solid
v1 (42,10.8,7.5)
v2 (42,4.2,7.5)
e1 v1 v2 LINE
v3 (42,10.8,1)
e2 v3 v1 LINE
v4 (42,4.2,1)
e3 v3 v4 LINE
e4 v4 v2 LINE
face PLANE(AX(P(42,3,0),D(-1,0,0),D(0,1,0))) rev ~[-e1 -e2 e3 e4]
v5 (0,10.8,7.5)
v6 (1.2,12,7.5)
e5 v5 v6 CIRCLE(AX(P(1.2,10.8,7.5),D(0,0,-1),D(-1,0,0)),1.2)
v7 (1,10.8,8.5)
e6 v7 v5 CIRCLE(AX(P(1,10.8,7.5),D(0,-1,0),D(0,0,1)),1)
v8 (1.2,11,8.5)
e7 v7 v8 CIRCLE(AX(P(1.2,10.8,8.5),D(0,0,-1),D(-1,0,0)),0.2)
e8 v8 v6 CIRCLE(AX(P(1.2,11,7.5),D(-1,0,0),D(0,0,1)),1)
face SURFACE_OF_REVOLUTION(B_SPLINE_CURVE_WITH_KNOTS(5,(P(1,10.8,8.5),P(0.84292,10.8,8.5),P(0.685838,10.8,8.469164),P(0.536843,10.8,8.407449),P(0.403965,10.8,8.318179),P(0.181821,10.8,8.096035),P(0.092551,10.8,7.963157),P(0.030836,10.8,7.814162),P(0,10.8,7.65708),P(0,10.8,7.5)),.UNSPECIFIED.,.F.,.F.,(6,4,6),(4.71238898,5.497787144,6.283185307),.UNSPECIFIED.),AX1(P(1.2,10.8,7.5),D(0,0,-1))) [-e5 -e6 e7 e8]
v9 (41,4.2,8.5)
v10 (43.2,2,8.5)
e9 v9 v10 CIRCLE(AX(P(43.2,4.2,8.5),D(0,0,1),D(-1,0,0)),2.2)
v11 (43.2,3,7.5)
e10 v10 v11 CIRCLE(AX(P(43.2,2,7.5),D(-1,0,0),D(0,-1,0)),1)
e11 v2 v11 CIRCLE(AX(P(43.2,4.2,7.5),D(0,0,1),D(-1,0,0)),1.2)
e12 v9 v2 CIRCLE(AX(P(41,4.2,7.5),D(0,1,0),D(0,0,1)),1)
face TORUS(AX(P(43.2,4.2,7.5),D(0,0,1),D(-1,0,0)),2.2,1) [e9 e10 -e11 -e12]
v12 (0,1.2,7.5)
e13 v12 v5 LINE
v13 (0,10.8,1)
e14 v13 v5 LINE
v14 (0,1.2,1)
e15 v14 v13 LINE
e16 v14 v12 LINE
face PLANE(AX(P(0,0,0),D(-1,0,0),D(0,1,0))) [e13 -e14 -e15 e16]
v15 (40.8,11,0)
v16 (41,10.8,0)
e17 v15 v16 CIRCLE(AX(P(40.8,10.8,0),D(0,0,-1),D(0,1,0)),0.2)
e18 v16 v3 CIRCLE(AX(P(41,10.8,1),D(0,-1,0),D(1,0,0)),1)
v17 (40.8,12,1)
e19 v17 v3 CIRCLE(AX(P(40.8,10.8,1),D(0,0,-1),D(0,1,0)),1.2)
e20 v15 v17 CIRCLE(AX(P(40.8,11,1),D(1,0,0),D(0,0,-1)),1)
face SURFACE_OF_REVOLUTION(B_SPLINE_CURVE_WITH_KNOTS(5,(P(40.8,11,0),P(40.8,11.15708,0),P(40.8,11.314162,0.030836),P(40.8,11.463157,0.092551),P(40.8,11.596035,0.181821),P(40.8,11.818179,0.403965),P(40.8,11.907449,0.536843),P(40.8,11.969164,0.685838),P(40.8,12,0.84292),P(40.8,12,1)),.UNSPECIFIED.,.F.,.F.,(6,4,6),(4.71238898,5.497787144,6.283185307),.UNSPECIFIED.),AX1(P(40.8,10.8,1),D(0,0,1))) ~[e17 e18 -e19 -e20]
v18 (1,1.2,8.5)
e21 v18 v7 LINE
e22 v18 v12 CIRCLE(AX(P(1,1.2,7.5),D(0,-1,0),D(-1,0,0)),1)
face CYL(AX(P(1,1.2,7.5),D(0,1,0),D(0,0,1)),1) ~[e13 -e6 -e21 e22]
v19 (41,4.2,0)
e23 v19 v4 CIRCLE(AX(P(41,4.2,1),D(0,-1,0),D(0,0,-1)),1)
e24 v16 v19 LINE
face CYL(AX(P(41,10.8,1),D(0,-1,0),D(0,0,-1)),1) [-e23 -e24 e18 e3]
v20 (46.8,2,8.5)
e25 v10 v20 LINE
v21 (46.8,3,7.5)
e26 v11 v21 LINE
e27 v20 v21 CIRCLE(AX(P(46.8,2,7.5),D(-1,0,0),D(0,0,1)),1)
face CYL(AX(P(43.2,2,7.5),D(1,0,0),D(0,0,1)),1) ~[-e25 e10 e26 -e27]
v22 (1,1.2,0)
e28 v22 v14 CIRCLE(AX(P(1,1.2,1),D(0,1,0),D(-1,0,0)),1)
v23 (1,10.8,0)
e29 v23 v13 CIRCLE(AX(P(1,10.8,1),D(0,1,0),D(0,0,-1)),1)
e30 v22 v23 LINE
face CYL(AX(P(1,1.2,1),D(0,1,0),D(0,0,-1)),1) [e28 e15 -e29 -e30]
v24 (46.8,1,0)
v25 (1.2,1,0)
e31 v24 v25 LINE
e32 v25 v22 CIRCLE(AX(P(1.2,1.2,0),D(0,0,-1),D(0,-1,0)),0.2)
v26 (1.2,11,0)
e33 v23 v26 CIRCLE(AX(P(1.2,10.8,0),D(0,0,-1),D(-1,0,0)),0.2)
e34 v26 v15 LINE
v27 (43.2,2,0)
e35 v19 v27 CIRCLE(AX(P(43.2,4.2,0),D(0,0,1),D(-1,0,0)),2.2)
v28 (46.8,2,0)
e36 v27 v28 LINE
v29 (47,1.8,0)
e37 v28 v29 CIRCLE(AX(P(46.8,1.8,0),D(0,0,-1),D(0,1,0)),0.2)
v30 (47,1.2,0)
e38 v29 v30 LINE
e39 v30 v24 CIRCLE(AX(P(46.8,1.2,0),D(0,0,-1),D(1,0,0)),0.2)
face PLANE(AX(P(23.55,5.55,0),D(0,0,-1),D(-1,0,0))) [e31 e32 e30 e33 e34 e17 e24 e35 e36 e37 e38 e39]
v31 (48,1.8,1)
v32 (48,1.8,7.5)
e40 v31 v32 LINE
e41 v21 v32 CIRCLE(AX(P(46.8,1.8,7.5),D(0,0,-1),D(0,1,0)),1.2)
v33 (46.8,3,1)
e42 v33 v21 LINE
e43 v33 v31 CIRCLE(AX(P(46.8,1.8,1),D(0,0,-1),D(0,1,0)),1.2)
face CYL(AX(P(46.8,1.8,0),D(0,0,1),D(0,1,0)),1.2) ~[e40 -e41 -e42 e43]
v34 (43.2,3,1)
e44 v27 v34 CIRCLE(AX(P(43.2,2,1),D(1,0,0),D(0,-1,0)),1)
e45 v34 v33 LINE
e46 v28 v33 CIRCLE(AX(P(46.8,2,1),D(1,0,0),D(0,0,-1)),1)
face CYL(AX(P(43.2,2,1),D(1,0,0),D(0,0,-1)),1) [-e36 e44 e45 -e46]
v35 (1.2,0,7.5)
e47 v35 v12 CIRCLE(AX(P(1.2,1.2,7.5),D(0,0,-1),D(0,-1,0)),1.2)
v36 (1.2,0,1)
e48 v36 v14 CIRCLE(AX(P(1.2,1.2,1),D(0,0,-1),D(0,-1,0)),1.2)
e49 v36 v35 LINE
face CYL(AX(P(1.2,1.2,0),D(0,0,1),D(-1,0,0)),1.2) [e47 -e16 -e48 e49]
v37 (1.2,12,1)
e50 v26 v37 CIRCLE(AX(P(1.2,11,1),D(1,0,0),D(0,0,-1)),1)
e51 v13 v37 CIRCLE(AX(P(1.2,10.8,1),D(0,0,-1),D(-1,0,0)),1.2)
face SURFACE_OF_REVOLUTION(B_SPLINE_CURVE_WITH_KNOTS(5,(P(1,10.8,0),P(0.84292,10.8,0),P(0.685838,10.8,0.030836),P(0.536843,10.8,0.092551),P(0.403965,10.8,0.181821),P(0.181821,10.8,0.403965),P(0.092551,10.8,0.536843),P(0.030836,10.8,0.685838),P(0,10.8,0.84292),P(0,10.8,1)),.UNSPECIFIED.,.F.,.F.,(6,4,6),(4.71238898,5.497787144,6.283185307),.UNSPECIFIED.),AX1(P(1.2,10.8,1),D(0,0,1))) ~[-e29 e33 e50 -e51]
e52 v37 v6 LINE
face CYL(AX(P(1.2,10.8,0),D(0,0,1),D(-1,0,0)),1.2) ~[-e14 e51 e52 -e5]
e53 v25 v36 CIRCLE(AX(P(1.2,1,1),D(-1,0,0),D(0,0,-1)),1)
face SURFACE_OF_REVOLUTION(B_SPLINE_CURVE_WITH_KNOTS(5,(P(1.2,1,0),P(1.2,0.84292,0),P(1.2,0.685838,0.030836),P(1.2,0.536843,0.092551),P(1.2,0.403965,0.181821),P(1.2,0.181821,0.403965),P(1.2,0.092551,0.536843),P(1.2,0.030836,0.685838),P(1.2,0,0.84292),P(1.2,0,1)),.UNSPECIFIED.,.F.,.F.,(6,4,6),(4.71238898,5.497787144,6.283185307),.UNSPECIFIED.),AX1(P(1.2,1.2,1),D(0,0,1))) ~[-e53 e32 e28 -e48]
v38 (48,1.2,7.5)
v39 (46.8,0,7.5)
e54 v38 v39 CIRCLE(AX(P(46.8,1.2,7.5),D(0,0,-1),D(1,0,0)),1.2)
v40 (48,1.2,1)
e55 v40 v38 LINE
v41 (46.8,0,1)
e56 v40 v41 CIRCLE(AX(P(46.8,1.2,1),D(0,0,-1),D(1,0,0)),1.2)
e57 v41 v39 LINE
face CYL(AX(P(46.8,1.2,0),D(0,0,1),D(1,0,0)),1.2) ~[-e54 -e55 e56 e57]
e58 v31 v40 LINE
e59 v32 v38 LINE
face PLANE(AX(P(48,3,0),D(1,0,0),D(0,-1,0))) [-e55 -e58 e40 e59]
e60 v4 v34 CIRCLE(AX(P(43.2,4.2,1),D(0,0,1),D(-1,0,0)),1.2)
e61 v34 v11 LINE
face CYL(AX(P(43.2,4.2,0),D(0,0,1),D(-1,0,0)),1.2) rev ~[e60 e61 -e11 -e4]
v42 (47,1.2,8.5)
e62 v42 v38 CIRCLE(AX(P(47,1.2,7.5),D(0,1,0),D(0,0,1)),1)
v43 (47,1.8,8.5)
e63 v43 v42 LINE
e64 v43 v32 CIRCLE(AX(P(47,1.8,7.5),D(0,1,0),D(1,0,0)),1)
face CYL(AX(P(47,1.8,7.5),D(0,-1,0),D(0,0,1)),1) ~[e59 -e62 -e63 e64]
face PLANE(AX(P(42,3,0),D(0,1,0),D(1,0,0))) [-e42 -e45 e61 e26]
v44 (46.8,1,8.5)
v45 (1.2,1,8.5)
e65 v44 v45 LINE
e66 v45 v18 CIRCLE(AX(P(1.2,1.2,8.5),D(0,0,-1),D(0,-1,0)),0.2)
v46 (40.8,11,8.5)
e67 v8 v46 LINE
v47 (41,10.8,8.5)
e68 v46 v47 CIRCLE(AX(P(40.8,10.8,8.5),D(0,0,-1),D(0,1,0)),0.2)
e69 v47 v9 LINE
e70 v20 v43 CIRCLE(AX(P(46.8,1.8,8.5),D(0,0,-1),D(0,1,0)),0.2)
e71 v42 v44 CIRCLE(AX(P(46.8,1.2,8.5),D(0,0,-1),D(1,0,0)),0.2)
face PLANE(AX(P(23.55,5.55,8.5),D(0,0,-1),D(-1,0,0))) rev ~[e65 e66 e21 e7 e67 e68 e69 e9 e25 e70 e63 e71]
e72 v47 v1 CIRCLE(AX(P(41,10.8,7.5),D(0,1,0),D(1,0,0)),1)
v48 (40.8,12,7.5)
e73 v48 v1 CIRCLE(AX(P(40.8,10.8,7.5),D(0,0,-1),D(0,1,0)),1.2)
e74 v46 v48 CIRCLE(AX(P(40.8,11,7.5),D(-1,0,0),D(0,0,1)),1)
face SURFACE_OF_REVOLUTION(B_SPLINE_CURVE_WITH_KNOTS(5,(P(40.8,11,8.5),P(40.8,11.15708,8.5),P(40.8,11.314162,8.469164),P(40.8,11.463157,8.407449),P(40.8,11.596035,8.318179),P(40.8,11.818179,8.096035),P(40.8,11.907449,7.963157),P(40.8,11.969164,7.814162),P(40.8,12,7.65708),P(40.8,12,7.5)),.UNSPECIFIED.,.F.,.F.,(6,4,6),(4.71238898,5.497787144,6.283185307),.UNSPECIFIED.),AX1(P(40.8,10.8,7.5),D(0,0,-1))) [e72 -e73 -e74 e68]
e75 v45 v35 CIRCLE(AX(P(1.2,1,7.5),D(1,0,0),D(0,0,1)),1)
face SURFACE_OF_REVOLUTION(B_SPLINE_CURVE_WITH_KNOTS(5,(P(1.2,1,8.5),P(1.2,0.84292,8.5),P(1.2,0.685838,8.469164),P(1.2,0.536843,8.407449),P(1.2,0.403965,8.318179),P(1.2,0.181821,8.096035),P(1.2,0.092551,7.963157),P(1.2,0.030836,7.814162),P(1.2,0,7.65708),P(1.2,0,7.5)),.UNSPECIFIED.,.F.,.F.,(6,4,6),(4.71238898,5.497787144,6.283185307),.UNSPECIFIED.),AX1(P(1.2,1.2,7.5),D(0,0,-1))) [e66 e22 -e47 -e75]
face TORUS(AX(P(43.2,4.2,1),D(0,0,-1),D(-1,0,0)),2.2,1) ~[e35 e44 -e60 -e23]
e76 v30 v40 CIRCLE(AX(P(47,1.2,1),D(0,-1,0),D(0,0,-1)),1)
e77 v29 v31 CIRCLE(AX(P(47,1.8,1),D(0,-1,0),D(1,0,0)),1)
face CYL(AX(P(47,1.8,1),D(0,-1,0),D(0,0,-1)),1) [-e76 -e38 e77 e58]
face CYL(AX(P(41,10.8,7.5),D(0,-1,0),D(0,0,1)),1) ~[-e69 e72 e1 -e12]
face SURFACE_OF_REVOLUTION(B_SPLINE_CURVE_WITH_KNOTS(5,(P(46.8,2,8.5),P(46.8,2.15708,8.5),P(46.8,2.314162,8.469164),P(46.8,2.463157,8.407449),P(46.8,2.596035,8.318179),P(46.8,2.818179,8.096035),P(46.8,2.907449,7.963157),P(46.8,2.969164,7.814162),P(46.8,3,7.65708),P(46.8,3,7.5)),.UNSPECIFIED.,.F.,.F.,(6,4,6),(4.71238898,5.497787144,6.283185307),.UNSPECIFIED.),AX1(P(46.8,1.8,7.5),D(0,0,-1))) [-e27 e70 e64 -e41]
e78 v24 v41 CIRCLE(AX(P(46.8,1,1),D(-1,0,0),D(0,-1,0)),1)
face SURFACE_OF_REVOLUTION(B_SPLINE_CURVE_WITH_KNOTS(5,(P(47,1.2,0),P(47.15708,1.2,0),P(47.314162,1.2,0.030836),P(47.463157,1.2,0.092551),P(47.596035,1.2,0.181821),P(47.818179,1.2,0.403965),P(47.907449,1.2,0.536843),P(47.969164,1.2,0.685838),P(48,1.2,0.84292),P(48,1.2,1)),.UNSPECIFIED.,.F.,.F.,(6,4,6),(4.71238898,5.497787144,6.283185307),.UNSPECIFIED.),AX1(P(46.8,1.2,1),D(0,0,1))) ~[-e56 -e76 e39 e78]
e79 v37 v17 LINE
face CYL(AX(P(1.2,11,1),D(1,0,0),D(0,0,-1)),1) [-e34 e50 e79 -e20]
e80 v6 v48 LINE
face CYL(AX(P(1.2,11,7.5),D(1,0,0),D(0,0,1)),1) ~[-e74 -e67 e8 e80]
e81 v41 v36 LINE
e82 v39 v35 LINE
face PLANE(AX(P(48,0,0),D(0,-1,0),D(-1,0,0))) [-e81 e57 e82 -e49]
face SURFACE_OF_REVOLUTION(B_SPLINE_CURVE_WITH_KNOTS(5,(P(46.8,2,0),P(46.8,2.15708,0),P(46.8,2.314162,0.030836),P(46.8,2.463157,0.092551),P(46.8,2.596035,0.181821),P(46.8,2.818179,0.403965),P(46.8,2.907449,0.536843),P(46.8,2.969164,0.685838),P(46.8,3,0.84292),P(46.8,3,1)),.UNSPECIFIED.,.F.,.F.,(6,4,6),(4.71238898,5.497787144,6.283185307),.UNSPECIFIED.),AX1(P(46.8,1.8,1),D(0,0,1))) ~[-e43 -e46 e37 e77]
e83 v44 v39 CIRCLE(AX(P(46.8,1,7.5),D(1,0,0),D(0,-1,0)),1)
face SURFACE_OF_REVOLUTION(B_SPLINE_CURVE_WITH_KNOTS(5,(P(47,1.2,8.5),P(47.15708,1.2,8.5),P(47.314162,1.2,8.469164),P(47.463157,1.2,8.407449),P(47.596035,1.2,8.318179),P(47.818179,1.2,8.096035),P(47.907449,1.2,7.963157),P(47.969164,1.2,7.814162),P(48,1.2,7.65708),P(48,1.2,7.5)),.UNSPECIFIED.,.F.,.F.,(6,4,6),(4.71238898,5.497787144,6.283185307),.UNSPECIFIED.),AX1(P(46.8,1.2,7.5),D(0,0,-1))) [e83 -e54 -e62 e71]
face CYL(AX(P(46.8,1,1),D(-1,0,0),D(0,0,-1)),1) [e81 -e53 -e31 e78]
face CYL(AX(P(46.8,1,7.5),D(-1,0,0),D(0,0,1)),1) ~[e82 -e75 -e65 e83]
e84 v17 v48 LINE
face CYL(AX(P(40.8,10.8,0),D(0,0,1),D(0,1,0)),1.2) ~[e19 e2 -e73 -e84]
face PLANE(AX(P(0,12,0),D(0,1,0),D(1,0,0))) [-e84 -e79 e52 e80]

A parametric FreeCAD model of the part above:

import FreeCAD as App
import Part
import Sketcher
from FreeCAD import Vector
Q = App.Units.Quantity


def edges_at(feature, points):
    """Names of the edges that pass closest to the given points."""
    edges = feature.Shape.Edges
    near = lambda p: min(range(len(edges)), key=lambda i: edges[i].distToShape(Part.Vertex(*p))[0])
    return sorted({f"Edge{near(p) + 1}" for p in points})

doc = App.newDocument("Part")
params = doc.addObject("Spreadsheet::Sheet", "Params")
for row, (alias, value) in enumerate([
    ("sketch1_width", "48 mm"),
    ("sketch1_width2", "6 mm"),
    ("sketch1_height", "12 mm"),
    ("sketch1_height2", "3 mm"),
    ("pad1_length", "8.5 mm"),
    ("fillet_radius", "1.2 mm"),
    ("fillet2_radius", "1 mm"),
], start=1):
    params.set(f"A{row}", alias)
    params.set(f"B{row}", "=" + value)
    params.setAlias(f"B{row}", alias)

body = doc.addObject("PartDesign::Body", "Body")

# Sketch on XY plane
sketch1 = body.newObject("Sketcher::SketchObject", "Sketch")
sketch1.AttachmentSupport = (doc.getObject("XY_Plane"), [""])
sketch1.MapMode = "FlatFace"
sketch1.addGeometry(Part.LineSegment(Vector(0, 12, 0), Vector(0, 0, 0)), False)
sketch1.addGeometry(Part.LineSegment(Vector(0, 0, 0), Vector(48, 0, 0)), False)
sketch1.addGeometry(Part.LineSegment(Vector(48, 0, 0), Vector(48, 3, 0)), False)
sketch1.addGeometry(Part.LineSegment(Vector(48, 3, 0), Vector(42, 3, 0)), False)
sketch1.addGeometry(Part.LineSegment(Vector(42, 3, 0), Vector(42, 12, 0)), False)
sketch1.addGeometry(Part.LineSegment(Vector(42, 12, 0), Vector(0, 12, 0)), False)
sketch1.addConstraint(Sketcher.Constraint("Coincident", 0, 2, 1, 1))
sketch1.addConstraint(Sketcher.Constraint("Coincident", 1, 2, 2, 1))
sketch1.addConstraint(Sketcher.Constraint("Coincident", 2, 2, 3, 1))
sketch1.addConstraint(Sketcher.Constraint("Coincident", 3, 2, 4, 1))
sketch1.addConstraint(Sketcher.Constraint("Coincident", 4, 2, 5, 1))
sketch1.addConstraint(Sketcher.Constraint("Coincident", 5, 2, 0, 1))
sketch1.addConstraint(Sketcher.Constraint("Vertical", 0))
sketch1.addConstraint(Sketcher.Constraint("Horizontal", 1))
sketch1.addConstraint(Sketcher.Constraint("Vertical", 2))
sketch1.addConstraint(Sketcher.Constraint("Horizontal", 3))
sketch1.addConstraint(Sketcher.Constraint("Vertical", 4))
sketch1.addConstraint(Sketcher.Constraint("Horizontal", 5))
sketch1.addConstraint(Sketcher.Constraint("Coincident", 0, 2, -1, 1))
sketch1.addConstraint(Sketcher.Constraint("DistanceX", 1, 1, 1, 2, Q("48 mm")))
sketch1.addConstraint(Sketcher.Constraint("DistanceX", 3, 2, 3, 1, Q("6 mm")))
sketch1.addConstraint(Sketcher.Constraint("DistanceY", 0, 2, 0, 1, Q("12 mm")))
sketch1.addConstraint(Sketcher.Constraint("DistanceY", 2, 1, 2, 2, Q("3 mm")))
sketch1.setExpression("Constraints[13]", "Params.sketch1_width")
sketch1.setExpression("Constraints[14]", "Params.sketch1_width2")
sketch1.setExpression("Constraints[15]", "Params.sketch1_height")
sketch1.setExpression("Constraints[16]", "Params.sketch1_height2")
pad1 = body.newObject("PartDesign::Pad", "Pad")
pad1.Profile = sketch1
pad1.setExpression("Length", "Params.pad1_length")
doc.recompute()

fillet = body.newObject("PartDesign::Fillet", "Fillet")
fillet.Base = (pad1, edges_at(pad1, [
    (48, 0, 4.25),
    (48, 3, 4.25),
    (42, 3, 4.25),
    (42, 12, 4.25),
    (0, 12, 4.25),
    (0, 0, 4.25),
]))
fillet.setExpression("Radius", "Params.fillet_radius")
doc.recompute()

fillet2 = body.newObject("PartDesign::Fillet", "Fillet001")
fillet2.Base = (fillet, edges_at(fillet, [(21, 12, 8.5), (21, 12, 0)]))
fillet2.setExpression("Radius", "Params.fillet2_radius")

doc.recompute()
